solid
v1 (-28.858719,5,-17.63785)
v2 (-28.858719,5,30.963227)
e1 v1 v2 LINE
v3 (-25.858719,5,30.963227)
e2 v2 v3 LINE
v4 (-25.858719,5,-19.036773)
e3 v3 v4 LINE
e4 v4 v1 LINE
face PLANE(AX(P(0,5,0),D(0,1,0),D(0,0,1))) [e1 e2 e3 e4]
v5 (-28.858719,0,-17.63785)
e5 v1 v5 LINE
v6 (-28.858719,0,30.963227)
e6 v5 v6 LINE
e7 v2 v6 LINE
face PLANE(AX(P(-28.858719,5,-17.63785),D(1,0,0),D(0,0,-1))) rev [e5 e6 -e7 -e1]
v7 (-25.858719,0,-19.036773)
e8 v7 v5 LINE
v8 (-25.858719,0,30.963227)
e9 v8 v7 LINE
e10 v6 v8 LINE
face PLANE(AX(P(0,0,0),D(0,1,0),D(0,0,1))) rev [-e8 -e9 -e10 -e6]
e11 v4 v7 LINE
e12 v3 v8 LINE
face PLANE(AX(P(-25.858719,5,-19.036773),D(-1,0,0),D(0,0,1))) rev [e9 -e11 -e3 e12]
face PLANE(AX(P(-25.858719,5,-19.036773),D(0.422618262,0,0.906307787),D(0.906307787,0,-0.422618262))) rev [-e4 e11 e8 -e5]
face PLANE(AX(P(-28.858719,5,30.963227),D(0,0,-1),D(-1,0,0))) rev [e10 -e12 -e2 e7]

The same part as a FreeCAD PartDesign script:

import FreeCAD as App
import Part
import Sketcher

V = App.Vector
Q = App.Units.Quantity

doc = App.newDocument("Part")
body = doc.addObject("PartDesign::Body", "Body")

# Sketch on XZ plane
sketch1 = body.newObject("Sketcher::SketchObject", "Sketch")
sketch1.AttachmentSupport = (doc.getObject("XZ_Plane"), [""])
sketch1.MapMode = "FlatFace"
sketch1.addGeometry(Part.LineSegment(V(-25.9, -19, 0), V(-28.9, -17.6, 0)), False)
sketch1.addGeometry(Part.LineSegment(V(-28.9, -17.6, 0), V(-28.9, 31, 0)), False)
sketch1.addGeometry(Part.LineSegment(V(-28.9, 31, 0), V(-25.9, 31, 0)), False)
sketch1.addGeometry(Part.LineSegment(V(-25.9, 31, 0), V(-25.9, -19, 0)), False)
sketch1.addConstraint(Sketcher.Constraint("Coincident", 0, 2, 1, 1))
sketch1.addConstraint(Sketcher.Constraint("Coincident", 1, 2, 2, 1))
sketch1.addConstraint(Sketcher.Constraint("Coincident", 2, 2, 3, 1))
sketch1.addConstraint(Sketcher.Constraint("Coincident", 3, 2, 0, 1))
sketch1.addConstraint(Sketcher.Constraint("Vertical", 1))
sketch1.addConstraint(Sketcher.Constraint("Horizontal", 2))
sketch1.addConstraint(Sketcher.Constraint("Vertical", 3))
sketch1.addConstraint(Sketcher.Constraint("DistanceX", 2, 1, 2, 2, 3.0))
sketch1.addConstraint(Sketcher.Constraint("DistanceY", 3, 2, 3, 1, 50.0))
sketch1.addConstraint(Sketcher.Constraint("Angle", 0, Q("155 deg")))
sketch1.addConstraint(Sketcher.Constraint("DistanceX", 0, 2, -1, 1, 28.858719))
sketch1.addConstraint(Sketcher.Constraint("DistanceY", 0, 2, -1, 1, 17.63785))
pad1 = body.newObject("PartDesign::Pad", "Pad")
pad1.Profile = sketch1
pad1.Length = 5
pad1.Reversed = True

doc.recompute()
